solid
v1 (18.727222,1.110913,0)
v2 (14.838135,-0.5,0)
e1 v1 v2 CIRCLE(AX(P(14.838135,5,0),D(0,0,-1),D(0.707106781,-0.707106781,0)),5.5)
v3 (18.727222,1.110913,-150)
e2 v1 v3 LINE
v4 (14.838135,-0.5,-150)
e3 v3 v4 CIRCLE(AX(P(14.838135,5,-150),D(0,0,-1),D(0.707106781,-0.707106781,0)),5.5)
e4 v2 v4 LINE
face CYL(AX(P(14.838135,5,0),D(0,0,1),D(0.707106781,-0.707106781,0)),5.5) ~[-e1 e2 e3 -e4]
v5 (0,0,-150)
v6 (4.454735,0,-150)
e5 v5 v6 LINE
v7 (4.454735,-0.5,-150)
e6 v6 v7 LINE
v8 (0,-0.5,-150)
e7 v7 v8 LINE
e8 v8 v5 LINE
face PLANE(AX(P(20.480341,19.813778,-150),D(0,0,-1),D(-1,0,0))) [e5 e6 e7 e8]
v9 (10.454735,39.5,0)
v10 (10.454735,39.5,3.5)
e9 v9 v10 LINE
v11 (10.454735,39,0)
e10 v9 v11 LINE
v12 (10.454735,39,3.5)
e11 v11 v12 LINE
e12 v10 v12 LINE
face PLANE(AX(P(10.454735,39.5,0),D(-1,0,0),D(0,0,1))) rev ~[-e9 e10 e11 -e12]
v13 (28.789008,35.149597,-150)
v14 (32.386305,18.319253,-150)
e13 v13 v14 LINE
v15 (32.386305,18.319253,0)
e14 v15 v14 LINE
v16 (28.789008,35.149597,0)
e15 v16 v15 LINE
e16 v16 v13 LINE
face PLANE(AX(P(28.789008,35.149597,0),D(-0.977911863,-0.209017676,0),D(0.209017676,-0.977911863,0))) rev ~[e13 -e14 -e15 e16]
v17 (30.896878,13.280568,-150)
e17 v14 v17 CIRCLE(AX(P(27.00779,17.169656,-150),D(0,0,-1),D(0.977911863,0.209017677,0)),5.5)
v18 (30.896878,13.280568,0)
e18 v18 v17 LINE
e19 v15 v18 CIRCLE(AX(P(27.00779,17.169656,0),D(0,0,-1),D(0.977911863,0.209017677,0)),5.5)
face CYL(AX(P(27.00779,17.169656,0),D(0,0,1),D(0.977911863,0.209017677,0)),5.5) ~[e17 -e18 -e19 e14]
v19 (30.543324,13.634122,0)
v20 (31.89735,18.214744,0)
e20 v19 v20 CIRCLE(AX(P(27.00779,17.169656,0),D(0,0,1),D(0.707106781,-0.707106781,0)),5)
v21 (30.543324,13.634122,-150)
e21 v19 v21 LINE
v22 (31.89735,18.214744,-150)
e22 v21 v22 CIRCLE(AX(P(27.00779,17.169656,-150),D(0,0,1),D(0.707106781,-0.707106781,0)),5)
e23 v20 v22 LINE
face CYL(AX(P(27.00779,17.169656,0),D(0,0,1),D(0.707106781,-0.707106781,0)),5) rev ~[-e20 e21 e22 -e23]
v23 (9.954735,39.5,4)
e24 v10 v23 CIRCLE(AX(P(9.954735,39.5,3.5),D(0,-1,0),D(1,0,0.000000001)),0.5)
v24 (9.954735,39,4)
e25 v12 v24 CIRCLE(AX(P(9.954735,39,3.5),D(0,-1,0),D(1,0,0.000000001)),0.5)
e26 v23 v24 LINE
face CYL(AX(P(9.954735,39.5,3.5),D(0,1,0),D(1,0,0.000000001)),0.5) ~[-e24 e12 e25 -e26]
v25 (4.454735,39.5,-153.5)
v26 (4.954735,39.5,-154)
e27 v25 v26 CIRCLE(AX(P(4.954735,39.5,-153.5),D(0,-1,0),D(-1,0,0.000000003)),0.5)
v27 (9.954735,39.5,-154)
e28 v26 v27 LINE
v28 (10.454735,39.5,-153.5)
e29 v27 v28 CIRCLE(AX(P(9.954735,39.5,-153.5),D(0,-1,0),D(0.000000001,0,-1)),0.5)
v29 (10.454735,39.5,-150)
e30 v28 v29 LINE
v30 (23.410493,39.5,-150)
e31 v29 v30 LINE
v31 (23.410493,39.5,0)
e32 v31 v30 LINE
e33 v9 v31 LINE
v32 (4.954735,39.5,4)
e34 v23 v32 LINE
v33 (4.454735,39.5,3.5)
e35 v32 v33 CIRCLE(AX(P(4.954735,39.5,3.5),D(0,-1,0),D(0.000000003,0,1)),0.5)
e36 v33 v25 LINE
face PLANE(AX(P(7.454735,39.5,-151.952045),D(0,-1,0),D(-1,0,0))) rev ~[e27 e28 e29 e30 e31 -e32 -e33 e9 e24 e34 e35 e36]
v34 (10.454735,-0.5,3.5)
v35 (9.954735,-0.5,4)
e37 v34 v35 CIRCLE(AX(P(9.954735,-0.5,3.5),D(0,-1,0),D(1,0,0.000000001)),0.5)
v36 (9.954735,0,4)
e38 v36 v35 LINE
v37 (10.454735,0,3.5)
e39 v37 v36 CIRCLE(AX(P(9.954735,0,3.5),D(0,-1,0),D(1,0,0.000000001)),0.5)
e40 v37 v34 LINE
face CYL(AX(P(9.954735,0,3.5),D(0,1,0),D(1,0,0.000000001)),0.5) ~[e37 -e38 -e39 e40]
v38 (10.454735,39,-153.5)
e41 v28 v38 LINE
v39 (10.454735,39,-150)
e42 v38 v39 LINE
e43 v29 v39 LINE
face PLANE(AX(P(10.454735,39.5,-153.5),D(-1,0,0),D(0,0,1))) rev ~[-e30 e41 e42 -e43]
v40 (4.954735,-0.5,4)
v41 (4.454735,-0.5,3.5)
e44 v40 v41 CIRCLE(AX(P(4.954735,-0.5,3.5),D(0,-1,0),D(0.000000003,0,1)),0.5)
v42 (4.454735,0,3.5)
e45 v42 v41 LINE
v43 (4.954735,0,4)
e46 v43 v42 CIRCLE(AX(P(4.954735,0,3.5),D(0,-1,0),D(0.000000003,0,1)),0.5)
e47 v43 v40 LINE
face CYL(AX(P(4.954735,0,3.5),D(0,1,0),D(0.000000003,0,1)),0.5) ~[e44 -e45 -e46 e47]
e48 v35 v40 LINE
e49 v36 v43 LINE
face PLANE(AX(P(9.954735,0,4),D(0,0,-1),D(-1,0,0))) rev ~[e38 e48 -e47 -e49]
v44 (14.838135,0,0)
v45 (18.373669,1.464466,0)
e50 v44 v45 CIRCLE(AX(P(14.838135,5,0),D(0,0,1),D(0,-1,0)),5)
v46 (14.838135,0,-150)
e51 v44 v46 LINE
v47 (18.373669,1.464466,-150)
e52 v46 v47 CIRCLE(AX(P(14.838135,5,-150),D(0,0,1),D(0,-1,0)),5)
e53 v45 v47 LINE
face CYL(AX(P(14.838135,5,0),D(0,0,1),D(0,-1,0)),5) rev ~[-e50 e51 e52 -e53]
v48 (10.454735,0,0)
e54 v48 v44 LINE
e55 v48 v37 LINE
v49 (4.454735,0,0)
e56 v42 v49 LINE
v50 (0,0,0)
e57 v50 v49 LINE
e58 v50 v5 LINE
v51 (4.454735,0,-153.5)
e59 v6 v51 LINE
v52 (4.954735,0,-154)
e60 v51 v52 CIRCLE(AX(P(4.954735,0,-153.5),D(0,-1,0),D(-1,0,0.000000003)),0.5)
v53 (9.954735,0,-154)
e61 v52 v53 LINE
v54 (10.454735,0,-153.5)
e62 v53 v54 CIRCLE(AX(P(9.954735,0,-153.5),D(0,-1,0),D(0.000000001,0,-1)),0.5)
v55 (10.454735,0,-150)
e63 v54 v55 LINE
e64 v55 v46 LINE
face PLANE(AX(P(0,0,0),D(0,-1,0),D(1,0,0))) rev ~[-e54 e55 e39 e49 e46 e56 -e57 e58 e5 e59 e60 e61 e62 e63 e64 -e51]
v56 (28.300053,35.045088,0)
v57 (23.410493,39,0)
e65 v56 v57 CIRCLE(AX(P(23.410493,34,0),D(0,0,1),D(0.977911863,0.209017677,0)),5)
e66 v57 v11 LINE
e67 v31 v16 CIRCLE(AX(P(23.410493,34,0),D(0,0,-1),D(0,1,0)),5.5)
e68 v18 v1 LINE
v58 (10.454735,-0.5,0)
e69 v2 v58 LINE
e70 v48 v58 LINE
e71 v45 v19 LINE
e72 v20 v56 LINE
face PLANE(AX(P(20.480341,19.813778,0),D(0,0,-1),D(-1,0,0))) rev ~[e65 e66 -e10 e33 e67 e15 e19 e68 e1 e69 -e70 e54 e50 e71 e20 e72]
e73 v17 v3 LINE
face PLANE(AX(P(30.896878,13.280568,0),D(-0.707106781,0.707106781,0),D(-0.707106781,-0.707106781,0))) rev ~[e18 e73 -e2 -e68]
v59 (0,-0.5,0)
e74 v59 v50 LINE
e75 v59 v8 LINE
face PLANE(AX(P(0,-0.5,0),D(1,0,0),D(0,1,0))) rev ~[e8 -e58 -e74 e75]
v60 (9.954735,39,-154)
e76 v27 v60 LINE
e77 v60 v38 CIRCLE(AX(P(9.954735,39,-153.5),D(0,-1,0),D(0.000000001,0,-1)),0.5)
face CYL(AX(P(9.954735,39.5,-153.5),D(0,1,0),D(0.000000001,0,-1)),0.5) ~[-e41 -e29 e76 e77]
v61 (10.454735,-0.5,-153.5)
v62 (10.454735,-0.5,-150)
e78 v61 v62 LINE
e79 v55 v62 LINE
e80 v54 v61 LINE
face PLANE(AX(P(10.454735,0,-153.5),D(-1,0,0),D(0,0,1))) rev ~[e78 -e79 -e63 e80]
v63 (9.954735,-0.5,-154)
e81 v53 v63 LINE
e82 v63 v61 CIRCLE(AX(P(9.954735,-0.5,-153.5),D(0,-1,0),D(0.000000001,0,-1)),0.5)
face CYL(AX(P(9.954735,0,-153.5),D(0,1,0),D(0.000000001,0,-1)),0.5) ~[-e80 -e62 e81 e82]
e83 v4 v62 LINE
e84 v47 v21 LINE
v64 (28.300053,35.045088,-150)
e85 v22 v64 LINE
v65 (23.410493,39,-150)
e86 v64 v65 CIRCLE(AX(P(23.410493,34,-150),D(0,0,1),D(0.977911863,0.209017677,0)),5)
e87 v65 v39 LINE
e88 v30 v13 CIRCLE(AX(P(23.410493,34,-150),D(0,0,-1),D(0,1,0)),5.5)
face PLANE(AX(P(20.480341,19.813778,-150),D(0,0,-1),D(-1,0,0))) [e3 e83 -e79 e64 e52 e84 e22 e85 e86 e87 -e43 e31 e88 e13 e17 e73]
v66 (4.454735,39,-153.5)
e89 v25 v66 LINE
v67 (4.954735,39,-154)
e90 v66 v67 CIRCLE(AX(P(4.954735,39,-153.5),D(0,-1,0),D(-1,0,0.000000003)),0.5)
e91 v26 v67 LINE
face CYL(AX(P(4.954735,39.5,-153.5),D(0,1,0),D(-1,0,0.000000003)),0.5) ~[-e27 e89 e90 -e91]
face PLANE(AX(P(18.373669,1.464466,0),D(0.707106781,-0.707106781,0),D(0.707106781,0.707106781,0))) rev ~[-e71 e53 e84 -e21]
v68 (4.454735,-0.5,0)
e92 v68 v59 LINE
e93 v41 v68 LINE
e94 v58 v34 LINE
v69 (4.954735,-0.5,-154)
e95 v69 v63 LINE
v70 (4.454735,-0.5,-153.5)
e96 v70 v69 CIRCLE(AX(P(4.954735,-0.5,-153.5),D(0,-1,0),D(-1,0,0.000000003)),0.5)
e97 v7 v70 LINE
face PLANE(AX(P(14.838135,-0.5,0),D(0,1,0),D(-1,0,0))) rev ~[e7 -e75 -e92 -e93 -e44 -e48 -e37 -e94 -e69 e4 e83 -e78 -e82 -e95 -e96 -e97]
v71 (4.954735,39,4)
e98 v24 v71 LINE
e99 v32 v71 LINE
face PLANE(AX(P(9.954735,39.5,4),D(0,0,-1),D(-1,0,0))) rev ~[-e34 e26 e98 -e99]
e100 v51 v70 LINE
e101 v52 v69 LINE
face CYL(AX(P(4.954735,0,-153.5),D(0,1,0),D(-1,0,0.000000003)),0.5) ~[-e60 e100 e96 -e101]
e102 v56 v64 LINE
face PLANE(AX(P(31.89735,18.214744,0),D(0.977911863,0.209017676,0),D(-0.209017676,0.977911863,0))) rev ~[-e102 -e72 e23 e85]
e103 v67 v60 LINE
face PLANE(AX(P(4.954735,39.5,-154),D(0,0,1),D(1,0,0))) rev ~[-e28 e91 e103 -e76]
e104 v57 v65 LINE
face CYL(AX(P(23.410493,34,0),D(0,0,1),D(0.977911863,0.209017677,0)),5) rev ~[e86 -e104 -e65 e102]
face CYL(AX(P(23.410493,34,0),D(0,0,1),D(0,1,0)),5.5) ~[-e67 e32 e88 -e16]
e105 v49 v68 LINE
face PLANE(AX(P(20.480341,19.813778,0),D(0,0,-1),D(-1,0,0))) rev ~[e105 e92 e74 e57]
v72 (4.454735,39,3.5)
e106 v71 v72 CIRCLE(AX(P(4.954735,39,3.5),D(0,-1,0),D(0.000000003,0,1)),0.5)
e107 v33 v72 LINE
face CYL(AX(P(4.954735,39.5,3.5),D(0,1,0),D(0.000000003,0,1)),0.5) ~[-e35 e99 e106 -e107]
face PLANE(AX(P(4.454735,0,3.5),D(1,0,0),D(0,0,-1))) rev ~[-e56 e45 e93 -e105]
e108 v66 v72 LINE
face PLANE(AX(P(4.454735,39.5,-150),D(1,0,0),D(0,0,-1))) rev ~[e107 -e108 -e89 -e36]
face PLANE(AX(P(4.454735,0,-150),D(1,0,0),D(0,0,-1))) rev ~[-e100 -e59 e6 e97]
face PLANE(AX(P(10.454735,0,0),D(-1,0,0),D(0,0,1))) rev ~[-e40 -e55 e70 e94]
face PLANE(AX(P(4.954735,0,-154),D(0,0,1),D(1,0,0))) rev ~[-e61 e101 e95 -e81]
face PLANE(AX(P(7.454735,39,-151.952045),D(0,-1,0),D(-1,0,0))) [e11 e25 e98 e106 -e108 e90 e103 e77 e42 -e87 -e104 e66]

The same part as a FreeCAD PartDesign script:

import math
import FreeCAD as App
import Part
import Sketcher
Q = App.Units.Quantity

doc = App.newDocument("Part")
body = doc.addObject("PartDesign::Body", "Body")

# Sketch on XY plane
sketch1 = body.newObject("Sketcher::SketchObject", "Sketch")
sketch1.AttachmentSupport = (doc.getObject("XY_Plane"), [""])
sketch1.MapMode = "FlatFace"
sketch1.addGeometry([
    Part.LineSegment(App.Vector(14.8, 0, 0), App.Vector(0, 0, 0)),  # 0
    Part.LineSegment(App.Vector(0, 0, 0), App.Vector(0, -0.5, 0)),  # 1
    Part.LineSegment(App.Vector(0, -0.5, 0), App.Vector(14.8, -0.5, 0)),  # 2
    Part.ArcOfCircle(Part.Circle(App.Vector(14.8, 5, 0), App.Vector(0, 0, 1), 5.5), math.radians(-90), math.radians(-45)),  # 3
    Part.LineSegment(App.Vector(18.7, 1.1, 0), App.Vector(30.9, 13.3, 0)),  # 4
    Part.ArcOfCircle(Part.Circle(App.Vector(27, 17.2, 0), App.Vector(0, 0, 1), 5.5), math.radians(-45), math.radians(12)),  # 5
    Part.LineSegment(App.Vector(32.4, 18.3, 0), App.Vector(28.8, 35.1, 0)),  # 6
    Part.ArcOfCircle(Part.Circle(App.Vector(23.4, 34, 0), App.Vector(0, 0, 1), 5.5), math.radians(12), math.radians(90)),  # 7
    Part.LineSegment(App.Vector(23.4, 39.5, 0), App.Vector(4.5, 39.5, 0)),  # 8
    Part.LineSegment(App.Vector(4.5, 39.5, 0), App.Vector(4.5, 39, 0)),  # 9
    Part.LineSegment(App.Vector(4.5, 39, 0), App.Vector(23.4, 39, 0)),  # 10
    Part.ArcOfCircle(Part.Circle(App.Vector(23.4, 34, 0), App.Vector(0, 0, 1), 5), math.radians(12), math.radians(90)),  # 11
    Part.LineSegment(App.Vector(28.3, 35, 0), App.Vector(31.9, 18.2, 0)),  # 12
    Part.ArcOfCircle(Part.Circle(App.Vector(27, 17.2, 0), App.Vector(0, 0, 1), 5), math.radians(-45), math.radians(12)),  # 13
    Part.LineSegment(App.Vector(30.5, 13.6, 0), App.Vector(18.4, 1.5, 0)),  # 14
    Part.ArcOfCircle(Part.Circle(App.Vector(14.8, 5, 0), App.Vector(0, 0, 1), 5), math.radians(-90), math.radians(-45)),  # 15
], False)
sketch1.addConstraint([
    Sketcher.Constraint("Coincident", 0, 2, 1, 1),
    Sketcher.Constraint("Coincident", 1, 2, 2, 1),
    Sketcher.Constraint("Tangent", 2, 2, 3, 1),
    Sketcher.Constraint("Tangent", 3, 2, 4, 1),
    Sketcher.Constraint("Tangent", 4, 2, 5, 1),
    Sketcher.Constraint("Tangent", 5, 2, 6, 1),
    Sketcher.Constraint("Tangent", 6, 2, 7, 1),
    Sketcher.Constraint("Tangent", 7, 2, 8, 1),
    Sketcher.Constraint("Coincident", 8, 2, 9, 1),
    Sketcher.Constraint("Coincident", 9, 2, 10, 1),
    Sketcher.Constraint("Tangent", 10, 2, 11, 2),
    Sketcher.Constraint("Tangent", 11, 1, 12, 1),
    Sketcher.Constraint("Tangent", 12, 2, 13, 2),
    Sketcher.Constraint("Tangent", 13, 1, 14, 1),
    Sketcher.Constraint("Tangent", 14, 2, 15, 2),
    Sketcher.Constraint("Tangent", 15, 1, 0, 1),
    Sketcher.Constraint("Horizontal", 0),
    Sketcher.Constraint("Vertical", 1),
    Sketcher.Constraint("Horizontal", 2),
    Sketcher.Constraint("Horizontal", 8),
    Sketcher.Constraint("Vertical", 9),
    Sketcher.Constraint("Horizontal", 10),
    Sketcher.Constraint("Coincident", 0, 2, -1, 1),
    Sketcher.Constraint("Coincident", 11, 3, 7, 3),
    Sketcher.Constraint("Coincident", 13, 3, 5, 3),
    Sketcher.Constraint("Coincident", 15, 3, 3, 3),
    Sketcher.Constraint("Equal", 3, 5),
    Sketcher.Constraint("Equal", 5, 7),
    Sketcher.Constraint("Equal", 11, 13),
    Sketcher.Constraint("Equal", 13, 15),
    Sketcher.Constraint("Equal", 4, 6),
    Sketcher.Constraint("Radius", 11, 5.0),
    Sketcher.Constraint("Radius", 3, 5.5),
    Sketcher.Constraint("Angle", 4, Q("45 deg")),
    Sketcher.Constraint("DistanceY", -1, 1, 7, 3, 34.0),
    Sketcher.Constraint("DistanceX", 8, 2, 8, 1, 18.955759),
    Sketcher.Constraint("DistanceX", 0, 2, 0, 1, 14.838135),
    Sketcher.Constraint("DistanceX", -1, 1, 5, 3, 27.00779),
])
pad1 = body.newObject("PartDesign::Pad", "Pad")
pad1.Profile = sketch1
pad1.Length = 150
pad1.Reversed = True

# Sketch on XZ plane
sketch2 = body.newObject("Sketcher::SketchObject", "Sketch001")
sketch2.AttachmentSupport = (doc.getObject("XZ_Plane"), [""])
sketch2.MapMode = "FlatFace"
sketch2.AttachmentOffset = App.Placement(App.Vector(0, 0, -39.5), App.Rotation())
sketch2.addGeometry([
    Part.LineSegment(App.Vector(4.45, -153.5, 0), App.Vector(4.45, -150, 0)),  # 0
    Part.LineSegment(App.Vector(4.45, -150, 0), App.Vector(10.45, -150, 0)),  # 1
    Part.LineSegment(App.Vector(10.45, -150, 0), App.Vector(10.45, -153.5, 0)),  # 2
    Part.ArcOfCircle(Part.Circle(App.Vector(9.95, -153.5, 0), App.Vector(0, 0, 1), 0.5), math.radians(-90), math.radians(0)),  # 3
    Part.LineSegment(App.Vector(9.95, -154, 0), App.Vector(4.95, -154, 0)),  # 4
    Part.ArcOfCircle(Part.Circle(App.Vector(4.95, -153.5, 0), App.Vector(0, 0, 1), 0.5), math.radians(180), math.radians(270)),  # 5
    Part.LineSegment(App.Vector(10.45, 0, 0), App.Vector(4.45, 0, 0)),  # 6
    Part.LineSegment(App.Vector(4.45, 0, 0), App.Vector(4.45, 3.5, 0)),  # 7
    Part.ArcOfCircle(Part.Circle(App.Vector(4.95, 3.5, 0), App.Vector(0, 0, 1), 0.5), math.radians(90), math.radians(180)),  # 8
    Part.LineSegment(App.Vector(4.95, 4, 0), App.Vector(9.95, 4, 0)),  # 9
    Part.ArcOfCircle(Part.Circle(App.Vector(9.95, 3.5, 0), App.Vector(0, 0, 1), 0.5), math.radians(0), math.radians(90)),  # 10
    Part.LineSegment(App.Vector(10.45, 3.5, 0), App.Vector(10.45, 0, 0)),  # 11
], False)
sketch2.addConstraint([
    Sketcher.Constraint("Coincident", 0, 2, 1, 1),
    Sketcher.Constraint("Coincident", 1, 2, 2, 1),
    Sketcher.Constraint("Tangent", 2, 2, 3, 2),
    Sketcher.Constraint("Tangent", 3, 1, 4, 1),
    Sketcher.Constraint("Tangent", 4, 2, 5, 2),
    Sketcher.Constraint("Tangent", 5, 1, 0, 1),
    Sketcher.Constraint("Coincident", 6, 2, 7, 1),
    Sketcher.Constraint("Tangent", 7, 2, 8, 2),
    Sketcher.Constraint("Tangent", 8, 1, 9, 1),
    Sketcher.Constraint("Tangent", 9, 2, 10, 2),
    Sketcher.Constraint("Tangent", 10, 1, 11, 1),
    Sketcher.Constraint("Coincident", 11, 2, 6, 1),
    Sketcher.Constraint("Vertical", 0),
    Sketcher.Constraint("Horizontal", 1),
    Sketcher.Constraint("Vertical", 2),
    Sketcher.Constraint("Horizontal", 4),
    Sketcher.Constraint("Horizontal", 6),
    Sketcher.Constraint("Vertical", 7),
    Sketcher.Constraint("Horizontal", 9),
    Sketcher.Constraint("Vertical", 11),
    Sketcher.Constraint("Equal", 3, 5),
    Sketcher.Constraint("Equal", 5, 8),
    Sketcher.Constraint("Equal", 8, 10),
    Sketcher.Constraint("PointOnObject", 6, 2, -1),
    Sketcher.Constraint("Vertical", 5, 3, 8, 3),
    Sketcher.Constraint("Vertical", 3, 3, 10, 3),
    Sketcher.Constraint("Equal", 2, 7),
    Sketcher.Constraint("Radius", 3, 0.5),
    Sketcher.Constraint("DistanceX", 1, 1, 1, 2, 6.0),
    Sketcher.Constraint("DistanceY", 0, 1, 0, 2, 3.5),
    Sketcher.Constraint("DistanceY", 0, 2, -1, 1, 150.0),
    Sketcher.Constraint("DistanceX", -1, 1, 3, 3, 9.954735),
])
pad2 = body.newObject("PartDesign::Pad", "Pad001")
pad2.Profile = sketch2
pad2.Length = 0.5

# Sketch on XZ plane
sketch3 = body.newObject("Sketcher::SketchObject", "Sketch002")
sketch3.AttachmentSupport = (doc.getObject("XZ_Plane"), [""])
sketch3.MapMode = "FlatFace"
sketch3.addGeometry([
    Part.LineSegment(App.Vector(10.45, -150, 0), App.Vector(4.45, -150, 0)),  # 0
    Part.LineSegment(App.Vector(4.45, -150, 0), App.Vector(4.45, -153.5, 0)),  # 1
    Part.ArcOfCircle(Part.Circle(App.Vector(4.95, -153.5, 0), App.Vector(0, 0, 1), 0.5), math.radians(180), math.radians(270)),  # 2
    Part.LineSegment(App.Vector(4.95, -154, 0), App.Vector(9.95, -154, 0)),  # 3
    Part.ArcOfCircle(Part.Circle(App.Vector(9.95, -153.5, 0), App.Vector(0, 0, 1), 0.5), math.radians(-90), math.radians(0)),  # 4
    Part.LineSegment(App.Vector(10.45, -153.5, 0), App.Vector(10.45, -150, 0)),  # 5
    Part.LineSegment(App.Vector(10.45, 0, 0), App.Vector(10.45, 3.5, 0)),  # 6
    Part.ArcOfCircle(Part.Circle(App.Vector(9.95, 3.5, 0), App.Vector(0, 0, 1), 0.5), math.radians(0), math.radians(90)),  # 7
    Part.LineSegment(App.Vector(9.95, 4, 0), App.Vector(4.95, 4, 0)),  # 8
    Part.ArcOfCircle(Part.Circle(App.Vector(4.95, 3.5, 0), App.Vector(0, 0, 1), 0.5), math.radians(90), math.radians(180)),  # 9
    Part.LineSegment(App.Vector(4.45, 3.5, 0), App.Vector(4.45, 0, 0)),  # 10
    Part.LineSegment(App.Vector(4.45, 0, 0), App.Vector(10.45, 0, 0)),  # 11
], False)
sketch3.addConstraint([
    Sketcher.Constraint("Coincident", 0, 2, 1, 1),
    Sketcher.Constraint("Tangent", 1, 2, 2, 1),
    Sketcher.Constraint("Tangent", 2, 2, 3, 1),
    Sketcher.Constraint("Tangent", 3, 2, 4, 1),
    Sketcher.Constraint("Tangent", 4, 2, 5, 1),
    Sketcher.Constraint("Coincident", 5, 2, 0, 1),
    Sketcher.Constraint("Tangent", 6, 2, 7, 1),
    Sketcher.Constraint("Tangent", 7, 2, 8, 1),
    Sketcher.Constraint("Tangent", 8, 2, 9, 1),
    Sketcher.Constraint("Tangent", 9, 2, 10, 1),
    Sketcher.Constraint("Coincident", 10, 2, 11, 1),
    Sketcher.Constraint("Coincident", 11, 2, 6, 1),
    Sketcher.Constraint("Horizontal", 0),
    Sketcher.Constraint("Vertical", 1),
    Sketcher.Constraint("Horizontal", 3),
    Sketcher.Constraint("Vertical", 5),
    Sketcher.Constraint("Vertical", 6),
    Sketcher.Constraint("Horizontal", 8),
    Sketcher.Constraint("Vertical", 10),
    Sketcher.Constraint("Horizontal", 11),
    Sketcher.Constraint("Equal", 2, 4),
    Sketcher.Constraint("Equal", 4, 7),
    Sketcher.Constraint("Equal", 7, 9),
    Sketcher.Constraint("PointOnObject", 10, 2, -1),
    Sketcher.Constraint("Vertical", 4, 3, 7, 3),
    Sketcher.Constraint("Vertical", 2, 3, 9, 3),
    Sketcher.Constraint("Equal", 5, 6),
    Sketcher.Constraint("Radius", 2, 0.5),
    Sketcher.Constraint("DistanceX", 0, 2, 0, 1, 6.0),
    Sketcher.Constraint("DistanceY", 1, 2, 1, 1, 3.5),
    Sketcher.Constraint("DistanceY", 0, 2, -1, 1, 150.0),
    Sketcher.Constraint("DistanceX", -1, 1, 2, 3, 4.954735),
])
pad3 = body.newObject("PartDesign::Pad", "Pad002")
pad3.Profile = sketch3
pad3.Length = 0.5

doc.recompute()
